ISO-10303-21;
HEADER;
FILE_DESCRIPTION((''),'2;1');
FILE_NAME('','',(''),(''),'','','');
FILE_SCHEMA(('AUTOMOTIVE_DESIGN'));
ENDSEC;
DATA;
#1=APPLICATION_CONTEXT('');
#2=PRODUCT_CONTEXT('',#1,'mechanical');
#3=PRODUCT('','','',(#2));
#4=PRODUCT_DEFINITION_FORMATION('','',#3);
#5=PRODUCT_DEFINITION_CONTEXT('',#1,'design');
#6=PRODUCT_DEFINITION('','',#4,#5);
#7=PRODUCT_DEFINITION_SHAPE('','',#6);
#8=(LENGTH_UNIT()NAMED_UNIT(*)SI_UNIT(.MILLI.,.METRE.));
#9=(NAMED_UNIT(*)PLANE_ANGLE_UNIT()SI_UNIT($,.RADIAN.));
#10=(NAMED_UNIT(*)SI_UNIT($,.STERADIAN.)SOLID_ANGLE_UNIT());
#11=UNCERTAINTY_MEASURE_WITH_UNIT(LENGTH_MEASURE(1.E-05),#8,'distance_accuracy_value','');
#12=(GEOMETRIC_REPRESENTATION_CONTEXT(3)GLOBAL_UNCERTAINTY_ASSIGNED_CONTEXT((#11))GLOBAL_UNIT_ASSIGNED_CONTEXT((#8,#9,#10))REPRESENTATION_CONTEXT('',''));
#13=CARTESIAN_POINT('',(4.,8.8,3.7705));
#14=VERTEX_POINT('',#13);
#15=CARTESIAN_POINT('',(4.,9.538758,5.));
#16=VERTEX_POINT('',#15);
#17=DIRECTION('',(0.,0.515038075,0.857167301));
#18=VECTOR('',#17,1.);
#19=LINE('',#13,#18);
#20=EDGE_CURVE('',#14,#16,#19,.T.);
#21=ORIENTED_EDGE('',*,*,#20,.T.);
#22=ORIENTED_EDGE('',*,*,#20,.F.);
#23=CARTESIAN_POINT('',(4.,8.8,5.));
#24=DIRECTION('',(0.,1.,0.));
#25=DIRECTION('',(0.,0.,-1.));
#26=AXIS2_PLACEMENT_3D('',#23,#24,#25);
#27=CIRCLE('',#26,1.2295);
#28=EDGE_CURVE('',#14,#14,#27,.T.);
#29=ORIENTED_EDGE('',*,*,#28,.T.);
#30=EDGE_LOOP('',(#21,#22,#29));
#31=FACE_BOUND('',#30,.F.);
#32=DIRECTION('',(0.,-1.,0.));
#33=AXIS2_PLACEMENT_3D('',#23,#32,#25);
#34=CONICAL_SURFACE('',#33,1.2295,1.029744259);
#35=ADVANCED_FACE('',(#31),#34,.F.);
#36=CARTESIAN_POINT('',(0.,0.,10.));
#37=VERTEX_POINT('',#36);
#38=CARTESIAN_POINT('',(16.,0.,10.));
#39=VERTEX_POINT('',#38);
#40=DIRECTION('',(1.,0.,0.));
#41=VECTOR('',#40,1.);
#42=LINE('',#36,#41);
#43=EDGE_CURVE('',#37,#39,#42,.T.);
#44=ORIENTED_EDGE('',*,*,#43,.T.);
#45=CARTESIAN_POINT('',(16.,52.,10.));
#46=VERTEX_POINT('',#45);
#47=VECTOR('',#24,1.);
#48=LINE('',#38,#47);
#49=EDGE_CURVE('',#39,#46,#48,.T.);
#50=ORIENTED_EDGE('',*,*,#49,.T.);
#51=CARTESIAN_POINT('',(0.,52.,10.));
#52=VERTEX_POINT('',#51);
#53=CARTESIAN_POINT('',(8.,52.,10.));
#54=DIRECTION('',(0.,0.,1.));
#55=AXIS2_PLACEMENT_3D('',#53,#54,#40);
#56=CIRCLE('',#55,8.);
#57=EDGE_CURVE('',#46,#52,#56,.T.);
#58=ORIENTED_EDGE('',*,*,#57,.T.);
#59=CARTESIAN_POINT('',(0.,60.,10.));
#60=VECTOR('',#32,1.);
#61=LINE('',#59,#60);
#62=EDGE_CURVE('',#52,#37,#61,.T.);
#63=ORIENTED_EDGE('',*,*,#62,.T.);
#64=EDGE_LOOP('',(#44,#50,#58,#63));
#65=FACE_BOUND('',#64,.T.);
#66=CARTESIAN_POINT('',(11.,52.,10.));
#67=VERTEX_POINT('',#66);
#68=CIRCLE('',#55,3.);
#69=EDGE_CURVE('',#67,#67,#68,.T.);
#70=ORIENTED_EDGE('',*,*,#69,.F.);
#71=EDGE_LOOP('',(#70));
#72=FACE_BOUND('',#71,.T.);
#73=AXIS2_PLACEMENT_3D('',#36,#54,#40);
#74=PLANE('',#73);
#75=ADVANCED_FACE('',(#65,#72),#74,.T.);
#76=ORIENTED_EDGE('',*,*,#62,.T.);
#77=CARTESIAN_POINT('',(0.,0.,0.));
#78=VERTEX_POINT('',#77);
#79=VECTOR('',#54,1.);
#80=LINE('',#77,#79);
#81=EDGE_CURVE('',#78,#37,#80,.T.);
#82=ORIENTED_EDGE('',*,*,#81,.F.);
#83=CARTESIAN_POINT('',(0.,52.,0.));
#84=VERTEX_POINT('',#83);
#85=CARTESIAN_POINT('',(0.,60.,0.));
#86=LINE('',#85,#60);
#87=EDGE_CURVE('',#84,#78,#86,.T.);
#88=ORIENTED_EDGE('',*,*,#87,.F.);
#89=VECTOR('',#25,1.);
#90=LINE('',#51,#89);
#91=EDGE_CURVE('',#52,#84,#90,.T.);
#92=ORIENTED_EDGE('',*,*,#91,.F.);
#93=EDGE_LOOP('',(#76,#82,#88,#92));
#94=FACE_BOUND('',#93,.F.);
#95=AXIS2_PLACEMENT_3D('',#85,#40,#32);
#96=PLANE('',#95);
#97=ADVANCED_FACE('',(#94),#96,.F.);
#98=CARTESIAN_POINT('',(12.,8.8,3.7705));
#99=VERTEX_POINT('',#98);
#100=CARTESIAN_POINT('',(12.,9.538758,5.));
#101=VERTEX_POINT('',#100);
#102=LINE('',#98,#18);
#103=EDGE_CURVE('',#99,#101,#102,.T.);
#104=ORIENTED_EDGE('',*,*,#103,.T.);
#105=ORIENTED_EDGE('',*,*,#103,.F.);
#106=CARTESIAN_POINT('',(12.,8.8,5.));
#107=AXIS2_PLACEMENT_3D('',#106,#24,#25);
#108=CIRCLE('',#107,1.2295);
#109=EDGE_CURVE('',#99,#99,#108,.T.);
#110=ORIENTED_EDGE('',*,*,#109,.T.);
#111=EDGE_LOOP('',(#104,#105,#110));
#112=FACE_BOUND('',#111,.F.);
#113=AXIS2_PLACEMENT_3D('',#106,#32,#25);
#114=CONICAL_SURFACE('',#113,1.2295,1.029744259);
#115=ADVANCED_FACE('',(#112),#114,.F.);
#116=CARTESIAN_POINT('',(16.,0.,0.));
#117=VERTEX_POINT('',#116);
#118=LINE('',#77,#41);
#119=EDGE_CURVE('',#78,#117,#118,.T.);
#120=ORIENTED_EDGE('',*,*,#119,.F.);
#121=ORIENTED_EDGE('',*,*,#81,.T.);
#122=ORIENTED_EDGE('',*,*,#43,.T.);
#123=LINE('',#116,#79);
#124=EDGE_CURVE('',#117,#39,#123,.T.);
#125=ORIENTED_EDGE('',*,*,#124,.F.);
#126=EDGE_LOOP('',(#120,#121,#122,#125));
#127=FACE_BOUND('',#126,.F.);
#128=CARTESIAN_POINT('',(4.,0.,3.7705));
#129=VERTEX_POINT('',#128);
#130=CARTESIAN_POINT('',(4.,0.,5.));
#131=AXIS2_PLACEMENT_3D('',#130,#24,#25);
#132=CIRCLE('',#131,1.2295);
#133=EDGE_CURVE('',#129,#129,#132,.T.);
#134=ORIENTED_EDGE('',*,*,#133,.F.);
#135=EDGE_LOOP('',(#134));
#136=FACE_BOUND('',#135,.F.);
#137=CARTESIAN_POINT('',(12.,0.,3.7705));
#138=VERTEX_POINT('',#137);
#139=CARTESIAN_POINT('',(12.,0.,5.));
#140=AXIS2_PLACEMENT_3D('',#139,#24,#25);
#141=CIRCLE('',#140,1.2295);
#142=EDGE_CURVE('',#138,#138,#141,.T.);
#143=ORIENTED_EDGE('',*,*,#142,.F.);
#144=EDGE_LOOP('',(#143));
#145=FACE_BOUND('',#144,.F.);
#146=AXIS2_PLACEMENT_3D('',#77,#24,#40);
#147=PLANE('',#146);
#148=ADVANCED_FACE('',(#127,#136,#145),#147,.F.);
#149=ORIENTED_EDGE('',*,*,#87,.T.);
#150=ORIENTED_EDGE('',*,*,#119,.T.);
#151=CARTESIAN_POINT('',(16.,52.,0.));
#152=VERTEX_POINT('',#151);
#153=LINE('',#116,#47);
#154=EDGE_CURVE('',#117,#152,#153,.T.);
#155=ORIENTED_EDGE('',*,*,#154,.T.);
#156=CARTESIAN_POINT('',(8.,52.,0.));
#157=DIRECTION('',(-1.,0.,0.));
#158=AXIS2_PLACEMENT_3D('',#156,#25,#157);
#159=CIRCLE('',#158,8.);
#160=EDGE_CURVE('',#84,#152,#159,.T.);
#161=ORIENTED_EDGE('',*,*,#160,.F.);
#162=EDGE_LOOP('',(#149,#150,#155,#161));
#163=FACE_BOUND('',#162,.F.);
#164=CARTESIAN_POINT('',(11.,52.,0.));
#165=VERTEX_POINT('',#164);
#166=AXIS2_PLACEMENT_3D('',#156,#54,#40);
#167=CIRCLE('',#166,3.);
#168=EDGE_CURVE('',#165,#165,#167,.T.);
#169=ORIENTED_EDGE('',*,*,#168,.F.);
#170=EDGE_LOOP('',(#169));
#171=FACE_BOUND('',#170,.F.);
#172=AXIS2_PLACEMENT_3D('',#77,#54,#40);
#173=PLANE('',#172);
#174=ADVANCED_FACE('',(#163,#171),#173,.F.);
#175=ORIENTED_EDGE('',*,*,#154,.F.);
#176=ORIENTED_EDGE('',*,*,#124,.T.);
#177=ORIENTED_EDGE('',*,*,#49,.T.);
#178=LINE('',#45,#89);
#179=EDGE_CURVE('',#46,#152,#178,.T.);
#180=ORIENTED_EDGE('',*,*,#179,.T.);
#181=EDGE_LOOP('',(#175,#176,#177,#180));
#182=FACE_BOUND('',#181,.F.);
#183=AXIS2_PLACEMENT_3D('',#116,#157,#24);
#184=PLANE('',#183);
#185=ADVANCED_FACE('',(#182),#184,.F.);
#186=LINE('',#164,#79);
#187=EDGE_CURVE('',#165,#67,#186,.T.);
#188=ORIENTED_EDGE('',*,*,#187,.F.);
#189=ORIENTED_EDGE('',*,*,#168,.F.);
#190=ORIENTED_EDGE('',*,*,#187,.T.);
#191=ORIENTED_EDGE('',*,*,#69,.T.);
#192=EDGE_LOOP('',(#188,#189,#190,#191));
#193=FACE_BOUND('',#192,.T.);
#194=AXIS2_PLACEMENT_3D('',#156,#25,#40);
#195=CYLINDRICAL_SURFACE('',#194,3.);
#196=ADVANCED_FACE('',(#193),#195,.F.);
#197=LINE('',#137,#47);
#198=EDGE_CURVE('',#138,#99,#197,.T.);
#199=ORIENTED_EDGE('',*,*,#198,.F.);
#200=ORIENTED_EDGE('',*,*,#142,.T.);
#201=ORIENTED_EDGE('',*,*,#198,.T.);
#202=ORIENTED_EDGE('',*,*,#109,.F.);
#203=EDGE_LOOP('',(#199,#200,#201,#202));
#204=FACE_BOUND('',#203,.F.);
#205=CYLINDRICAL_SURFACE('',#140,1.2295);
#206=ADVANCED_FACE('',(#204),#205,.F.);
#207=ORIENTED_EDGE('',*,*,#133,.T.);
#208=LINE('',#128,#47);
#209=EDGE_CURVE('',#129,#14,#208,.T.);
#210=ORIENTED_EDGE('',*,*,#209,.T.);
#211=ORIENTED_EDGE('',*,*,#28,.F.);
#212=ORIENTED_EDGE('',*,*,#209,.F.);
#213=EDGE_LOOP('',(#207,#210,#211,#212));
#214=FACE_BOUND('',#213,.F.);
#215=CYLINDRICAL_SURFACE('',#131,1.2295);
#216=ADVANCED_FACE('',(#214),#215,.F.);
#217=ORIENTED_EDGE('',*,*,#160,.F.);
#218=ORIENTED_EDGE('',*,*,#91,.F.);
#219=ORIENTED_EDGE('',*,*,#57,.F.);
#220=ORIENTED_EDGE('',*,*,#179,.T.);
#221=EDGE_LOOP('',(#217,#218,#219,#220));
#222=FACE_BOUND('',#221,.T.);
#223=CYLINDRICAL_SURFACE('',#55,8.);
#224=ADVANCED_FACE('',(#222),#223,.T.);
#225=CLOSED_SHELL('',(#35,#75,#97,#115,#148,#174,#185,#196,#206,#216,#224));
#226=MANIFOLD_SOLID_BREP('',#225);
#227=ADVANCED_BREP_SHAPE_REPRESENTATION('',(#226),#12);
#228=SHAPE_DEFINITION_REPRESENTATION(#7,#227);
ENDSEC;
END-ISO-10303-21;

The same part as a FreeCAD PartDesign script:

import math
import FreeCAD as App
import Part
import Sketcher

V = App.Vector

doc = App.newDocument("Part")
params = doc.addObject("Spreadsheet::Sheet", "Params")
for row, (alias, value) in enumerate([
    ("sketch1_diameter", "6 mm"),
    ("sketch1_width", "16 mm"),
    ("sketch1_height", "60 mm"),
    ("pad1_length", "10 mm"),
    ("sketch2_radius", "8 mm"),
    ("sketch2_width", "0.72 mm"),
    ("hole_diameter", "2.459 mm"),
    ("hole_depth", "8.8 mm"),
], start=1):
    params.set(f"A{row}", alias)
    params.set(f"B{row}", "=" + value)
    params.setAlias(f"B{row}", alias)

body = doc.addObject("PartDesign::Body", "Body")

sketch1 = doc.addObject("Sketcher::SketchObject", "Sketch")
body.addObject(sketch1)
sketch1.AttachmentSupport = (doc.XY_Plane, [""])
sketch1.MapMode = "FlatFace"
sketch1.addGeometry(Part.LineSegment(V(0, 60, 0), V(0, 0, 0)), False)
sketch1.addGeometry(Part.LineSegment(V(0, 0, 0), V(16, 0, 0)), False)
sketch1.addGeometry(Part.LineSegment(V(16, 0, 0), V(16, 60, 0)), False)
sketch1.addGeometry(Part.LineSegment(V(16, 60, 0), V(0, 60, 0)), False)
sketch1.addGeometry(Part.Circle(V(8, 52, 0), V(0, 0, 1), 3), False)
sketch1.addConstraint(Sketcher.Constraint("Coincident", 0, 2, 1, 1))
sketch1.addConstraint(Sketcher.Constraint("Coincident", 1, 2, 2, 1))
sketch1.addConstraint(Sketcher.Constraint("Coincident", 2, 2, 3, 1))
sketch1.addConstraint(Sketcher.Constraint("Coincident", 3, 2, 0, 1))
sketch1.addConstraint(Sketcher.Constraint("Vertical", 0))
sketch1.addConstraint(Sketcher.Constraint("Horizontal", 1))
sketch1.addConstraint(Sketcher.Constraint("Vertical", 2))
sketch1.addConstraint(Sketcher.Constraint("Horizontal", 3))
sketch1.addConstraint(Sketcher.Constraint("Coincident", 0, 2, -1, 1))
sketch1.addConstraint(Sketcher.Constraint("Diameter", 4, 6.0))
sketch1.addConstraint(Sketcher.Constraint("DistanceX", 1, 1, 1, 2, 16.0))
sketch1.addConstraint(Sketcher.Constraint("DistanceY", 0, 2, 0, 1, 60.0))
sketch1.addConstraint(Sketcher.Constraint("DistanceX", -1, 1, 4, 3, 8.0))
sketch1.addConstraint(Sketcher.Constraint("DistanceY", 4, 3, 2, 2, 8.0))
sketch1.setExpression("Constraints[9]", "Params.sketch1_diameter")
sketch1.setExpression("Constraints[10]", "Params.sketch1_width")
sketch1.setExpression("Constraints[11]", "Params.sketch1_height")
pad1 = doc.addObject("PartDesign::Pad", "Pad")
body.addObject(pad1)
pad1.Profile = sketch1
pad1.setExpression("Length", "Params.pad1_length")

sketch2 = doc.addObject("Sketcher::SketchObject", "Sketch001")
body.addObject(sketch2)
sketch2.AttachmentSupport = (doc.XY_Plane, [""])
sketch2.MapMode = "FlatFace"
sketch2.AttachmentOffset = App.Placement(V(0, 0, 10), App.Rotation())
sketch2.addGeometry(Part.ArcOfCircle(Part.Circle(V(8, 52, 0), V(0, 0, 1), 8), math.radians(0), math.radians(180)), False)
sketch2.addGeometry(Part.LineSegment(V(16, 52, 0), V(16.7, 52, 0)), False)
sketch2.addGeometry(Part.LineSegment(V(16.7, 52, 0), V(16.7, 60.4, 0)), False)
sketch2.addGeometry(Part.LineSegment(V(16.7, 60.4, 0), V(-0.5, 60.4, 0)), False)
sketch2.addGeometry(Part.LineSegment(V(-0.5, 60.4, 0), V(-0.5, 52, 0)), False)
sketch2.addGeometry(Part.LineSegment(V(-0.5, 52, 0), V(0, 52, 0)), False)
sketch2.addConstraint(Sketcher.Constraint("Coincident", 0, 1, 1, 1))
sketch2.addConstraint(Sketcher.Constraint("Coincident", 1, 2, 2, 1))
sketch2.addConstraint(Sketcher.Constraint("Coincident", 2, 2, 3, 1))
sketch2.addConstraint(Sketcher.Constraint("Coincident", 3, 2, 4, 1))
sketch2.addConstraint(Sketcher.Constraint("Coincident", 4, 2, 5, 1))
sketch2.addConstraint(Sketcher.Constraint("Coincident", 5, 2, 0, 2))
sketch2.addConstraint(Sketcher.Constraint("Horizontal", 1))
sketch2.addConstraint(Sketcher.Constraint("Vertical", 2))
sketch2.addConstraint(Sketcher.Constraint("Horizontal", 3))
sketch2.addConstraint(Sketcher.Constraint("Vertical", 4))
sketch2.addConstraint(Sketcher.Constraint("Horizontal", 5))
sketch2.addConstraint(Sketcher.Constraint("PointOnObject", 5, 2, -2))
sketch2.addConstraint(Sketcher.Constraint("Horizontal", 1, 2, 4, 2))
sketch2.addConstraint(Sketcher.Constraint("Radius", 0, 8.0))
sketch2.addConstraint(Sketcher.Constraint("DistanceY", -1, 1, 0, 3, 52.0))
sketch2.addConstraint(Sketcher.Constraint("DistanceY", -1, 1, 0, 1, 52.0))
sketch2.addConstraint(Sketcher.Constraint("DistanceX", 1, 1, 1, 2, 0.72))
sketch2.addConstraint(Sketcher.Constraint("DistanceX", 3, 2, 3, 1, 17.221))
sketch2.addConstraint(Sketcher.Constraint("DistanceY", 2, 1, 2, 2, 8.3787))
sketch2.setExpression("Constraints[13]", "Params.sketch2_radius")
sketch2.setExpression("Constraints[16]", "Params.sketch2_width")
pocket1 = doc.addObject("PartDesign::Pocket", "Pocket")
body.addObject(pocket1)
pocket1.Profile = sketch2
pocket1.Type = "UpToFirst"

sketch3 = doc.addObject("Sketcher::SketchObject", "Sketch002")
body.addObject(sketch3)
sketch3.AttachmentSupport = (doc.XZ_Plane, [""])
sketch3.MapMode = "FlatFace"
sketch3.addGeometry(Part.Circle(V(4, 5, 0), V(0, 0, 1), 1.2), False)
sketch3.addGeometry(Part.Circle(V(12, 5, 0), V(0, 0, 1), 1.2), False)
sketch3.addConstraint(Sketcher.Constraint("Equal", 0, 1))
sketch3.addConstraint(Sketcher.Constraint("Horizontal", 0, 3, 1, 3))
sketch3.addConstraint(Sketcher.Constraint("Diameter", 0, 2.459))
sketch3.addConstraint(Sketcher.Constraint("DistanceX", -1, 1, 0, 3, 4.0))
sketch3.addConstraint(Sketcher.Constraint("DistanceY", -1, 1, 0, 3, 5.0))
sketch3.addConstraint(Sketcher.Constraint("DistanceX", -1, 1, 1, 3, 12.0))
doc.recompute()
hole = doc.addObject("PartDesign::Hole", "Hole")
body.addObject(hole)
hole.Profile = sketch3
hole.ThreadType = "None"
hole.setExpression("Diameter", "Params.hole_diameter")
hole.DepthType = "Dimension"
hole.setExpression("Depth", "Params.hole_depth")
hole.DrillPoint = "Angled"
hole.DrillPointAngle = 118

doc.recompute()
